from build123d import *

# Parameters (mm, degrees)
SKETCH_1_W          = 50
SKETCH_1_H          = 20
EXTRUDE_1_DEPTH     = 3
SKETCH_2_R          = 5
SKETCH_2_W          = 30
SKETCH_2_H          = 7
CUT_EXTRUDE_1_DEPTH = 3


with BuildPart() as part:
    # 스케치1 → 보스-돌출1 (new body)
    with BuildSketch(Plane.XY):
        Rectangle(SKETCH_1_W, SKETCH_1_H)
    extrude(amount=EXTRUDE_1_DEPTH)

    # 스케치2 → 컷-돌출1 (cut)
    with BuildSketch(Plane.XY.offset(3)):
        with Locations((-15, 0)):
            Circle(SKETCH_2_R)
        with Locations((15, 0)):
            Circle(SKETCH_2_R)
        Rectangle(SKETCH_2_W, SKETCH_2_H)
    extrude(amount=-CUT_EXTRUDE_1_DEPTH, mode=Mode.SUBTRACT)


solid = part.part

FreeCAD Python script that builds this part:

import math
import FreeCAD as App
import Part
import Sketcher
from FreeCAD import Vector
Q = App.Units.Quantity

doc = App.newDocument("Part")
params = doc.addObject("Spreadsheet::Sheet", "Params")
for row, (alias, value) in enumerate([
    ("sketch1_width", "50 mm"),
    ("sketch1_height", "20 mm"),
    ("pad1_length", "3 mm"),
    ("sketch2_radius", "5 mm"),
    ("pocket1_length", "3 mm"),
], start=1):
    params.set(f"A{row}", alias)
    params.set(f"B{row}", "=" + value)
    params.setAlias(f"B{row}", alias)

body = doc.addObject("PartDesign::Body", "Body")

# Sketch on XY plane
sketch1 = body.newObject("Sketcher::SketchObject", "Sketch")
sketch1.AttachmentSupport = (doc.getObject("XY_Plane"), [""])
sketch1.MapMode = "FlatFace"
sketch1.addGeometry([
    Part.LineSegment(Vector(-25, 10, 0), Vector(-25, -10, 0)),
    Part.LineSegment(Vector(-25, -10, 0), Vector(25, -10, 0)),
    Part.LineSegment(Vector(25, -10, 0), Vector(25, 10, 0)),
    Part.LineSegment(Vector(25, 10, 0), Vector(-25, 10, 0)),
], False)
sketch1.addConstraint([
    Sketcher.Constraint("Coincident", 0, 2, 1, 1),
    Sketcher.Constraint("Coincident", 1, 2, 2, 1),
    Sketcher.Constraint("Coincident", 2, 2, 3, 1),
    Sketcher.Constraint("Coincident", 3, 2, 0, 1),
    Sketcher.Constraint("Vertical", 0),
    Sketcher.Constraint("Horizontal", 1),
    Sketcher.Constraint("Vertical", 2),
    Sketcher.Constraint("Horizontal", 3),
    Sketcher.Constraint("Symmetric", 0, 2, 2, 2, -1, 1),
    Sketcher.Constraint("DistanceX", 1, 1, 1, 2, Q("50 mm")),
    Sketcher.Constraint("DistanceY", 0, 2, 0, 1, Q("20 mm")),
])
sketch1.setExpression("Constraints[9]", "Params.sketch1_width")
sketch1.setExpression("Constraints[10]", "Params.sketch1_height")
pad1 = body.newObject("PartDesign::Pad", "Pad")
pad1.Profile = sketch1
pad1.setExpression("Length", "Params.pad1_length")

# Sketch on XY plane
sketch2 = body.newObject("Sketcher::SketchObject", "Sketch001")
sketch2.AttachmentSupport = (doc.getObject("XY_Plane"), [""])
sketch2.MapMode = "FlatFace"
sketch2.AttachmentOffset = App.Placement(Vector(0, 0, 3), App.Rotation())
sketch2.addGeometry([
    Part.LineSegment(Vector(-11, -4, 0), Vector(11, -4, 0)),
    Part.ArcOfCircle(Part.Circle(Vector(15, 0, 0), Vector(0, 0, 1), 5), math.radians(-136), math.radians(136)),
    Part.LineSegment(Vector(11, 4, 0), Vector(-11, 4, 0)),
    Part.ArcOfCircle(Part.Circle(Vector(-15, 0, 0), Vector(0, 0, 1), 5), math.radians(44), math.radians(316)),
], False)
sketch2.addConstraint([
    Sketcher.Constraint("Coincident", 0, 2, 1, 1),
    Sketcher.Constraint("Coincident", 1, 2, 2, 1),
    Sketcher.Constraint("Coincident", 2, 2, 3, 1),
    Sketcher.Constraint("Coincident", 3, 2, 0, 1),
    Sketcher.Constraint("Horizontal", 0),
    Sketcher.Constraint("Horizontal", 2),
    Sketcher.Constraint("Equal", 1, 3),
    Sketcher.Constraint("Symmetric", 1, 3, 3, 3, -1, 1),
    Sketcher.Constraint("Symmetric", 0, 2, 1, 2, -1),
    Sketcher.Constraint("Radius", 1, Q("5 mm")),
    Sketcher.Constraint("DistanceX", -1, 1, 1, 3, Q("15 mm")),
    Sketcher.Constraint("DistanceY", 0, 2, 1, 2, Q("7 mm")),
])
sketch2.setExpression("Constraints[9]", "Params.sketch2_radius")
pocket1 = body.newObject("PartDesign::Pocket", "Pocket")
pocket1.Profile = sketch2
pocket1.setExpression("Length", "Params.pocket1_length")

doc.recompute()
